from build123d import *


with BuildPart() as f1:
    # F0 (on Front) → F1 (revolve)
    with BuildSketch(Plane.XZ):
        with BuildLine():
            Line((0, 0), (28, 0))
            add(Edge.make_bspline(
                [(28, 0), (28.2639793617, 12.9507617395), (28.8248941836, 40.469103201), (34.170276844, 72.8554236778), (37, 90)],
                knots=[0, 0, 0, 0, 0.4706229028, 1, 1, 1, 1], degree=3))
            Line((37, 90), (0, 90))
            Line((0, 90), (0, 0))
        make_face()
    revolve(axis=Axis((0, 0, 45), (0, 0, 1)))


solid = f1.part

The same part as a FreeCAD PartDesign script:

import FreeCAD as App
import Part
import Sketcher

V = App.Vector

doc = App.newDocument("Part")
body = doc.addObject("PartDesign::Body", "Body")

sketch1 = body.newObject("Sketcher::SketchObject", "Sketch")
sketch1.AttachmentSupport = (doc.getObject("XZ_Plane"), [""])
sketch1.MapMode = "FlatFace"
sketch1.addGeometry([
    Part.LineSegment(V(0, 0, 0), V(28, 0, 0)),
    Part.BSplineCurve([V(28, 0, 0), V(28.263979, 12.950762, 0), V(28.824894, 40.469103, 0), V(34.170277, 72.855424, 0), V(37, 90, 0)], [4, 1, 4], [0, 0.470622903, 1], False, 3, [1, 1, 1, 1, 1], False),
    Part.LineSegment(V(37, 90, 0), V(0, 90, 0)),
    Part.LineSegment(V(0, 90, 0), V(0, 0, 0)),
], False)
sketch1.addConstraint([
    Sketcher.Constraint("Block", 1),
    Sketcher.Constraint("Coincident", 0, 2, 1, 1),
    Sketcher.Constraint("Coincident", 1, 2, 2, 1),
    Sketcher.Constraint("Coincident", 2, 2, 3, 1),
    Sketcher.Constraint("Coincident", 3, 2, 0, 1),
    Sketcher.Constraint("Horizontal", 0),
    Sketcher.Constraint("Horizontal", 2),
    Sketcher.Constraint("Vertical", 3),
    Sketcher.Constraint("PointOnObject", 2, 2, -2),
])
revolution = body.newObject("PartDesign::Revolution", "Revolution")
revolution.Profile = sketch1
revolution.ReferenceAxis = (sketch1, ["V_Axis"])
revolution.Angle = 360

doc.recompute()
